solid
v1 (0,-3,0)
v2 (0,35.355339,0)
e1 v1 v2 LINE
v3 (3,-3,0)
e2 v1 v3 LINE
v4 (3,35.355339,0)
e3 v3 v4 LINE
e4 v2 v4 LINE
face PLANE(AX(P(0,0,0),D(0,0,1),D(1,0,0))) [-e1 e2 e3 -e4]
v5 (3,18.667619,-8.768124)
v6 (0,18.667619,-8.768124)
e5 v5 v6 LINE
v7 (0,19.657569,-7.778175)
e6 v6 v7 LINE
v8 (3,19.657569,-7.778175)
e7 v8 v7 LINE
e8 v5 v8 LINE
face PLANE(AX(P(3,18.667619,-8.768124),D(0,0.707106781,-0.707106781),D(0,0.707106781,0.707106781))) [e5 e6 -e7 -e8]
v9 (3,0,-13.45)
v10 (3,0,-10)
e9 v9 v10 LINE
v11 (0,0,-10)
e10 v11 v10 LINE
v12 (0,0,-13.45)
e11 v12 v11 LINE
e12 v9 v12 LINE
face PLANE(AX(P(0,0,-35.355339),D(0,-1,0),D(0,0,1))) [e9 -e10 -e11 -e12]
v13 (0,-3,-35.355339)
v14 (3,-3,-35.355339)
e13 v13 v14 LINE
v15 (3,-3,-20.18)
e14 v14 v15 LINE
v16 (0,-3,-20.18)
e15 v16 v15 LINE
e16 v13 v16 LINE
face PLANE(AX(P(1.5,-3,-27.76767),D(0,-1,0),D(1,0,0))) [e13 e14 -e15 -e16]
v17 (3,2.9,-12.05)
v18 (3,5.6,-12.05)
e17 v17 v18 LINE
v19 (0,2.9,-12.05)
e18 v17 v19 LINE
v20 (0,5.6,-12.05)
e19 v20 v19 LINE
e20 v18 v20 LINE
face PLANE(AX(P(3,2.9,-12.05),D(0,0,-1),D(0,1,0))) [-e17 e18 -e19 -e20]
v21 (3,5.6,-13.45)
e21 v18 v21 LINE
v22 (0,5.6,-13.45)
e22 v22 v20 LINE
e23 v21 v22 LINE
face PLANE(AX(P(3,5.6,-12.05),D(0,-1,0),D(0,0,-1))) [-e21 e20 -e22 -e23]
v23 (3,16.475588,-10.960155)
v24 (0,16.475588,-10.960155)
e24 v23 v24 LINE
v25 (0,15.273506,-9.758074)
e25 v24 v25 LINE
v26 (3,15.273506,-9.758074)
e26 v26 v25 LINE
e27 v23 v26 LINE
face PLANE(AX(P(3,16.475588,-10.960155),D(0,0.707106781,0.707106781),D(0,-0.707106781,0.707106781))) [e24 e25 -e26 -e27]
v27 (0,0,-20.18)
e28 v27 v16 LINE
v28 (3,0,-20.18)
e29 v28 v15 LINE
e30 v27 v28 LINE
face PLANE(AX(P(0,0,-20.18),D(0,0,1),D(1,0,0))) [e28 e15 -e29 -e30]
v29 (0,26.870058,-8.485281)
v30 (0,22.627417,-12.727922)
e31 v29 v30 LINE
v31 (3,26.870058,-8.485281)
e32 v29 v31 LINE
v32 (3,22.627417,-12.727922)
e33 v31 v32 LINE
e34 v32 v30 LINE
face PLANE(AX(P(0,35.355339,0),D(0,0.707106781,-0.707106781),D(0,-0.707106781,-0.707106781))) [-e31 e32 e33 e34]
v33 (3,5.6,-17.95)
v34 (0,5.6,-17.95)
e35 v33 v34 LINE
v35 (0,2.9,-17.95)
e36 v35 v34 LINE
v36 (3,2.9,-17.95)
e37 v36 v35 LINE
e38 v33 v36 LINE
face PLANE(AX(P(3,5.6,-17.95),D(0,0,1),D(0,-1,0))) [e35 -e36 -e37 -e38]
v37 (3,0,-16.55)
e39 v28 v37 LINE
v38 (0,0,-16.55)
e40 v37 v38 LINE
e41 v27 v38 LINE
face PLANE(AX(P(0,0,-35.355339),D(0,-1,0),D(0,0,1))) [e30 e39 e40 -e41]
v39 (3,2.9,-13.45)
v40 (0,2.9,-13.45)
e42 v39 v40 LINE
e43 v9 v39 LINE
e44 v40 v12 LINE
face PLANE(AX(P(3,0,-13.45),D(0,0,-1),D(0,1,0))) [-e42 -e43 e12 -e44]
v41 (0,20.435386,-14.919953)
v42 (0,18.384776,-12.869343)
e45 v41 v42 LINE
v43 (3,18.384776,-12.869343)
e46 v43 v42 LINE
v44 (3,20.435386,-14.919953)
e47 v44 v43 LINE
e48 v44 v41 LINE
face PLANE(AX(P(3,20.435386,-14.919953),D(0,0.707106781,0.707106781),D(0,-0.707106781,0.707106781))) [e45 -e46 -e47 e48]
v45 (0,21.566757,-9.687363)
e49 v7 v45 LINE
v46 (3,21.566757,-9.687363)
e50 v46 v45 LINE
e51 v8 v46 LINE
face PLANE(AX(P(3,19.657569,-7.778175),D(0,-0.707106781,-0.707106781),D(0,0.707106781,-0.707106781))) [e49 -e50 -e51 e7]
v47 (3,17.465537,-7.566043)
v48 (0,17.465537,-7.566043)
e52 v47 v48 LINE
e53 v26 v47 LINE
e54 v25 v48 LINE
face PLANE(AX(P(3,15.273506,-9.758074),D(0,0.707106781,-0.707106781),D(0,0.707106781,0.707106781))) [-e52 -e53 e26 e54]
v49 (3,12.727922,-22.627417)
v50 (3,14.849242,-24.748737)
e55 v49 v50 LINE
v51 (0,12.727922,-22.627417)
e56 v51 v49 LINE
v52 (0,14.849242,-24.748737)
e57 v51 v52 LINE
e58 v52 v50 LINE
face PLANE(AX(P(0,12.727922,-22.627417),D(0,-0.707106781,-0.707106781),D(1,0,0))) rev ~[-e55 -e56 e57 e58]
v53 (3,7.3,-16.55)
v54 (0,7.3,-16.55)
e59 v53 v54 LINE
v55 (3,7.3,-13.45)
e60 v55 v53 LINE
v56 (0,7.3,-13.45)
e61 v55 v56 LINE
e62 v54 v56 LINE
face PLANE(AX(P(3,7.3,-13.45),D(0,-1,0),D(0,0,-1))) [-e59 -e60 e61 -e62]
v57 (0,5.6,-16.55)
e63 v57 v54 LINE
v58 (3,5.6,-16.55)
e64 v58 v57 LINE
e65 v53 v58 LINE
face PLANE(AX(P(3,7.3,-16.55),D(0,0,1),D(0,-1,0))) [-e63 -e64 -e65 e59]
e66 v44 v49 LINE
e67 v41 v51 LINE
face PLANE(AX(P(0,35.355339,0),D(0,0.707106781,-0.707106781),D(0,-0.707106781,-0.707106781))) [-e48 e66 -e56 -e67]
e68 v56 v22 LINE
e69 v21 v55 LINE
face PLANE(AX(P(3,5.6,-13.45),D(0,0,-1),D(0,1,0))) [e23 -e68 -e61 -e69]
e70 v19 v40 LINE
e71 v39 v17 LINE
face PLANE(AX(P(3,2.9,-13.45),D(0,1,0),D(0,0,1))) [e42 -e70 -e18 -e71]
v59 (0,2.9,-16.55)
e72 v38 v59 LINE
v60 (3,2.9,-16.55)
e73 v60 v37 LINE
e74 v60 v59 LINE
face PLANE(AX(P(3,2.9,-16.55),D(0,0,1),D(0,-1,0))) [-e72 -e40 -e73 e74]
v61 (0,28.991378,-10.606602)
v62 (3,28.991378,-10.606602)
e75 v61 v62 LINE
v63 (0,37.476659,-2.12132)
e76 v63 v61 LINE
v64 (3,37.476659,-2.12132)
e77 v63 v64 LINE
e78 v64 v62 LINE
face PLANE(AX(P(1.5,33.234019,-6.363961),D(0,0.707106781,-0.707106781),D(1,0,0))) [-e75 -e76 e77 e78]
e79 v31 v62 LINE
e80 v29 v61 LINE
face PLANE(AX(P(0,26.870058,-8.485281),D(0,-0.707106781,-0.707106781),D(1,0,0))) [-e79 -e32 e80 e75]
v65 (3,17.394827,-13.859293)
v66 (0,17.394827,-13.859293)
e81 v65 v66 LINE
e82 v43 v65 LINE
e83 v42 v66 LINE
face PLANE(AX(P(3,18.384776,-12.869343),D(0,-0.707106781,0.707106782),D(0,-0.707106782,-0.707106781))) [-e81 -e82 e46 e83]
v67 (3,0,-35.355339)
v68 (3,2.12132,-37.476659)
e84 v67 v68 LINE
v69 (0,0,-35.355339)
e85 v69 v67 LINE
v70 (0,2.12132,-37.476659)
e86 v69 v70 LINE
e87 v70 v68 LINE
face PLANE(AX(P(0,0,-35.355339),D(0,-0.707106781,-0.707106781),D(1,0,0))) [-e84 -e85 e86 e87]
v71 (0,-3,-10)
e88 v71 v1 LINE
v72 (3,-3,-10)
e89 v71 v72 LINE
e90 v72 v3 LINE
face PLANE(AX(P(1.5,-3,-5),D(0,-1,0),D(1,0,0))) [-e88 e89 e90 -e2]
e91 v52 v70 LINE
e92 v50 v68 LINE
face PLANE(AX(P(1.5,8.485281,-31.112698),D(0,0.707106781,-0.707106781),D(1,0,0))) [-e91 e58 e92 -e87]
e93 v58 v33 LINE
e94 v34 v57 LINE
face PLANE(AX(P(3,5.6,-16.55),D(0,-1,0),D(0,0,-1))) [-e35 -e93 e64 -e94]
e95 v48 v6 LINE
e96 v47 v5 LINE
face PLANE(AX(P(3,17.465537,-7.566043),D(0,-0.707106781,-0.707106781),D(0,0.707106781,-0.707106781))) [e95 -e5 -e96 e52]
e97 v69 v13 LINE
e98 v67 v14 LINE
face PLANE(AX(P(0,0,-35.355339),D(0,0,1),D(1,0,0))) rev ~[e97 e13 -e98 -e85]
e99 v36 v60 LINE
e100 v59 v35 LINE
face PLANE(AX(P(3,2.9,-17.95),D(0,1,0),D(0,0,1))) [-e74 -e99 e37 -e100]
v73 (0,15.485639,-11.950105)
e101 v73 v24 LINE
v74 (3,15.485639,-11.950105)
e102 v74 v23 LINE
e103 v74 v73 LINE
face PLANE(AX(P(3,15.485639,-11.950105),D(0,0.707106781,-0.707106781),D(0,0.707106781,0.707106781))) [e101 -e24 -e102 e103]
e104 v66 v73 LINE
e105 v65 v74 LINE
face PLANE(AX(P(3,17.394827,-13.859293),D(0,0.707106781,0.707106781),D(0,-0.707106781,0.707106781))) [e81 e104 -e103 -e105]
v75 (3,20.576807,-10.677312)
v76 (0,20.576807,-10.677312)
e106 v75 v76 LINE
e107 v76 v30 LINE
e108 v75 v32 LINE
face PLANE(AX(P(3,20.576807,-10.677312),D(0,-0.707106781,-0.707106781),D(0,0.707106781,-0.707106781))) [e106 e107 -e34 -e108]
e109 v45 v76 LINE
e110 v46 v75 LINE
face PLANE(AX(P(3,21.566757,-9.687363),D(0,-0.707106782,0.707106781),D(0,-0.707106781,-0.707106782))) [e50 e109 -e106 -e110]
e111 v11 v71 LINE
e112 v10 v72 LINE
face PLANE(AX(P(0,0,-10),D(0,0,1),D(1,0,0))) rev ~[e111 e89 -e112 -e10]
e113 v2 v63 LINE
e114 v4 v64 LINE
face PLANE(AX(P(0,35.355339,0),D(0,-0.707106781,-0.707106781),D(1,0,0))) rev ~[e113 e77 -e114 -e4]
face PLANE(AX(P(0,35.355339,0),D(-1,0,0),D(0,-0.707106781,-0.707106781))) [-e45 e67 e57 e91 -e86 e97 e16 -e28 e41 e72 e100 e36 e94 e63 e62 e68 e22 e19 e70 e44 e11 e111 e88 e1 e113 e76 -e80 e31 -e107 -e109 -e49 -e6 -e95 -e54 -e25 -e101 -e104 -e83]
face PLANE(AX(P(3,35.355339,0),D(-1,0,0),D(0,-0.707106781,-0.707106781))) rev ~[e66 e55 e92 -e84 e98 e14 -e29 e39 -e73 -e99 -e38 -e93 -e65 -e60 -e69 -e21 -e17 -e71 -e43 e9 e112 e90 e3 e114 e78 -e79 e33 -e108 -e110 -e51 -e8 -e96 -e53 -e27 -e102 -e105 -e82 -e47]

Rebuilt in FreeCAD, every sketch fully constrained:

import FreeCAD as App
import Part
import Sketcher

V = App.Vector
Q = App.Units.Quantity

doc = App.newDocument("Part")
params = doc.addObject("Spreadsheet::Sheet", "Params")
for row, (alias, value) in enumerate([
    ("sketch1_length", "50 mm"),
    ("pad1_length", "3 mm"),
    ("sketch2_width", "3 mm"),
    ("sketch2_height", "10 mm"),
    ("pad2_length", "3 mm"),
    ("sketch3_width", "2.9 mm"),
    ("sketch3_width2", "2.7 mm"),
    ("sketch3_width3", "1.7 mm"),
    ("sketch3_height", "3.1 mm"),
    ("sketch3_height2", "1.4 mm"),
    ("pocket1_length", "10 mm"),
    ("sketch4_width", "3 mm"),
    ("sketch4_height", "12 mm"),
    ("sketch4_height2", "18 mm"),
    ("pad3_length", "3 mm"),
    ("sketch5_length", "2.9 mm"),
    ("sketch5_length2", "3.1 mm"),
    ("sketch5_length3", "1.4 mm"),
    ("sketch5_length4", "2.7 mm"),
    ("sketch5_length5", "1.7 mm"),
    ("pocket2_length", "3 mm"),
], start=1):
    params.set(f"A{row}", alias)
    params.set(f"B{row}", "=" + value)
    params.setAlias(f"B{row}", alias)

body = doc.addObject("PartDesign::Body", "Body")

sketch1 = body.newObject("Sketcher::SketchObject", "Sketch")
sketch1.AttachmentSupport = (doc.getObject("YZ_Plane"), [""])
sketch1.MapMode = "FlatFace"
sketch1.addGeometry(Part.LineSegment(V(35, 0, 0), V(0, 0, 0)), False)
sketch1.addGeometry(Part.LineSegment(V(0, 0, 0), V(0, -35, 0)), False)
sketch1.addGeometry(Part.LineSegment(V(0, -35, 0), V(35, 0, 0)), False)
sketch1.addConstraint(Sketcher.Constraint("Coincident", 0, 2, 1, 1))
sketch1.addConstraint(Sketcher.Constraint("Coincident", 1, 2, 2, 1))
sketch1.addConstraint(Sketcher.Constraint("Coincident", 2, 2, 0, 1))
sketch1.addConstraint(Sketcher.Constraint("Horizontal", 0))
sketch1.addConstraint(Sketcher.Constraint("Vertical", 1))
sketch1.addConstraint(Sketcher.Constraint("Coincident", 0, 2, -1, 1))
sketch1.addConstraint(Sketcher.Constraint("Equal", 0, 1))
sketch1.addConstraint(Sketcher.Constraint("Distance", 2, 50.0))
sketch1.setExpression("Constraints[7]", "Params.sketch1_length")
pad1 = body.newObject("PartDesign::Pad", "Pad")
pad1.Profile = sketch1
pad1.setExpression("Length", "Params.pad1_length")

sketch2 = body.newObject("Sketcher::SketchObject", "Sketch001")
sketch2.AttachmentSupport = (doc.getObject("XZ_Plane"), [""])
sketch2.MapMode = "FlatFace"
sketch2.addGeometry(Part.LineSegment(V(0, 0, 0), V(0, -10, 0)), False)
sketch2.addGeometry(Part.LineSegment(V(0, -10, 0), V(3, -10, 0)), False)
sketch2.addGeometry(Part.LineSegment(V(3, -10, 0), V(3, 0, 0)), False)
sketch2.addGeometry(Part.LineSegment(V(3, 0, 0), V(0, 0, 0)), False)
sketch2.addGeometry(Part.LineSegment(V(0, -20.2, 0), V(0, -35.4, 0)), False)
sketch2.addGeometry(Part.LineSegment(V(0, -35.4, 0), V(3, -35.4, 0)), False)
sketch2.addGeometry(Part.LineSegment(V(3, -35.4, 0), V(3, -20.2, 0)), False)
sketch2.addGeometry(Part.LineSegment(V(3, -20.2, 0), V(0, -20.2, 0)), False)
sketch2.addConstraint(Sketcher.Constraint("Coincident", 0, 2, 1, 1))
sketch2.addConstraint(Sketcher.Constraint("Coincident", 1, 2, 2, 1))
sketch2.addConstraint(Sketcher.Constraint("Coincident", 2, 2, 3, 1))
sketch2.addConstraint(Sketcher.Constraint("Coincident", 3, 2, 0, 1))
sketch2.addConstraint(Sketcher.Constraint("Coincident", 4, 2, 5, 1))
sketch2.addConstraint(Sketcher.Constraint("Coincident", 5, 2, 6, 1))
sketch2.addConstraint(Sketcher.Constraint("Coincident", 6, 2, 7, 1))
sketch2.addConstraint(Sketcher.Constraint("Coincident", 7, 2, 4, 1))
sketch2.addConstraint(Sketcher.Constraint("Vertical", 0))
sketch2.addConstraint(Sketcher.Constraint("Horizontal", 1))
sketch2.addConstraint(Sketcher.Constraint("Vertical", 2))
sketch2.addConstraint(Sketcher.Constraint("Horizontal", 3))
sketch2.addConstraint(Sketcher.Constraint("Vertical", 4))
sketch2.addConstraint(Sketcher.Constraint("Horizontal", 5))
sketch2.addConstraint(Sketcher.Constraint("Vertical", 6))
sketch2.addConstraint(Sketcher.Constraint("Horizontal", 7))
sketch2.addConstraint(Sketcher.Constraint("Coincident", 3, 2, -1, 1))
sketch2.addConstraint(Sketcher.Constraint("PointOnObject", 4, 2, -2))
sketch2.addConstraint(Sketcher.Constraint("Vertical", 2, 2, 5, 2))
sketch2.addConstraint(Sketcher.Constraint("DistanceX", 1, 1, 1, 2, 3.0))
sketch2.addConstraint(Sketcher.Constraint("DistanceY", 0, 2, 0, 1, 10.0))
sketch2.addConstraint(Sketcher.Constraint("DistanceY", 6, 2, -1, 1, 20.18))
sketch2.addConstraint(Sketcher.Constraint("DistanceY", 4, 2, 4, 1, 15.175339))
sketch2.setExpression("Constraints[19]", "Params.sketch2_width")
sketch2.setExpression("Constraints[20]", "Params.sketch2_height")
pad2 = body.newObject("PartDesign::Pad", "Pad001")
pad2.Profile = sketch2
pad2.setExpression("Length", "Params.pad2_length")

sketch3 = body.newObject("Sketcher::SketchObject", "Sketch002")
sketch3.AttachmentSupport = (doc.getObject("YZ_Plane"), [""])
sketch3.MapMode = "FlatFace"
sketch3.AttachmentOffset = App.Placement(V(0, 0, 3), App.Rotation())
sketch3.addGeometry(Part.LineSegment(V(2.9, -13.4, 0), V(0, -13.4, 0)), False)
sketch3.addGeometry(Part.LineSegment(V(0, -13.4, 0), V(0, -16.6, 0)), False)
sketch3.addGeometry(Part.LineSegment(V(0, -16.6, 0), V(2.9, -16.6, 0)), False)
sketch3.addGeometry(Part.LineSegment(V(2.9, -16.6, 0), V(2.9, -17.9, 0)), False)
sketch3.addGeometry(Part.LineSegment(V(2.9, -17.9, 0), V(5.6, -17.9, 0)), False)
sketch3.addGeometry(Part.LineSegment(V(5.6, -17.9, 0), V(5.6, -16.6, 0)), False)
sketch3.addGeometry(Part.LineSegment(V(5.6, -16.6, 0), V(7.3, -16.6, 0)), False)
sketch3.addGeometry(Part.LineSegment(V(7.3, -16.6, 0), V(7.3, -13.4, 0)), False)
sketch3.addGeometry(Part.LineSegment(V(7.3, -13.4, 0), V(5.6, -13.4, 0)), False)
sketch3.addGeometry(Part.LineSegment(V(5.6, -13.4, 0), V(5.6, -12.1, 0)), False)
sketch3.addGeometry(Part.LineSegment(V(5.6, -12.1, 0), V(2.9, -12.1, 0)), False)
sketch3.addGeometry(Part.LineSegment(V(2.9, -12.1, 0), V(2.9, -13.4, 0)), False)
sketch3.addConstraint(Sketcher.Constraint("Coincident", 0, 2, 1, 1))
sketch3.addConstraint(Sketcher.Constraint("Coincident", 1, 2, 2, 1))
sketch3.addConstraint(Sketcher.Constraint("Coincident", 2, 2, 3, 1))
sketch3.addConstraint(Sketcher.Constraint("Coincident", 3, 2, 4, 1))
sketch3.addConstraint(Sketcher.Constraint("Coincident", 4, 2, 5, 1))
sketch3.addConstraint(Sketcher.Constraint("Coincident", 5, 2, 6, 1))
sketch3.addConstraint(Sketcher.Constraint("Coincident", 6, 2, 7, 1))
sketch3.addConstraint(Sketcher.Constraint("Coincident", 7, 2, 8, 1))
sketch3.addConstraint(Sketcher.Constraint("Coincident", 8, 2, 9, 1))
sketch3.addConstraint(Sketcher.Constraint("Coincident", 9, 2, 10, 1))
sketch3.addConstraint(Sketcher.Constraint("Coincident", 10, 2, 11, 1))
sketch3.addConstraint(Sketcher.Constraint("Coincident", 11, 2, 0, 1))
sketch3.addConstraint(Sketcher.Constraint("Horizontal", 0))
sketch3.addConstraint(Sketcher.Constraint("Vertical", 1))
sketch3.addConstraint(Sketcher.Constraint("Horizontal", 2))
sketch3.addConstraint(Sketcher.Constraint("Vertical", 3))
sketch3.addConstraint(Sketcher.Constraint("Horizontal", 4))
sketch3.addConstraint(Sketcher.Constraint("Vertical", 5))
sketch3.addConstraint(Sketcher.Constraint("Horizontal", 6))
sketch3.addConstraint(Sketcher.Constraint("Vertical", 7))
sketch3.addConstraint(Sketcher.Constraint("Horizontal", 8))
sketch3.addConstraint(Sketcher.Constraint("Vertical", 9))
sketch3.addConstraint(Sketcher.Constraint("Horizontal", 10))
sketch3.addConstraint(Sketcher.Constraint("Vertical", 11))
sketch3.addConstraint(Sketcher.Constraint("PointOnObject", 0, 2, -2))
sketch3.addConstraint(Sketcher.Constraint("Horizontal", 2, 2, 5, 2))
sketch3.addConstraint(Sketcher.Constraint("Horizontal", 0, 2, 7, 2))
sketch3.addConstraint(Sketcher.Constraint("Vertical", 5, 2, 8, 2))
sketch3.addConstraint(Sketcher.Constraint("Vertical", 3, 2, 10, 2))
sketch3.addConstraint(Sketcher.Constraint("Equal", 5, 9))
sketch3.addConstraint(Sketcher.Constraint("DistanceX", 0, 2, 0, 1, 2.9))
sketch3.addConstraint(Sketcher.Constraint("DistanceX", 4, 1, 4, 2, 2.7))
sketch3.addConstraint(Sketcher.Constraint("DistanceX", 6, 1, 6, 2, 1.7))
sketch3.addConstraint(Sketcher.Constraint("DistanceY", 1, 2, 1, 1, 3.1))
sketch3.addConstraint(Sketcher.Constraint("DistanceY", 3, 2, 3, 1, 1.4))
sketch3.addConstraint(Sketcher.Constraint("DistanceY", 0, 2, -1, 1, 13.45))
sketch3.setExpression("Constraints[30]", "Params.sketch3_width")
sketch3.setExpression("Constraints[31]", "Params.sketch3_width2")
sketch3.setExpression("Constraints[32]", "Params.sketch3_width3")
sketch3.setExpression("Constraints[33]", "Params.sketch3_height")
sketch3.setExpression("Constraints[34]", "Params.sketch3_height2")
pocket1 = body.newObject("PartDesign::Pocket", "Pocket")
pocket1.Profile = sketch3
pocket1.setExpression("Length", "Params.pocket1_length")

sketch4 = body.newObject("Sketcher::SketchObject", "Sketch003")
sketch4.Placement = App.Placement(V(0, 17.67767, -17.67767), App.Rotation(V(1, 0, 0), V(0, -0.707106781, -0.707106781), V(0, 0.707106781, -0.707106781), "ZXY"))
sketch4.addGeometry(Part.LineSegment(V(0, -13, 0), V(0, -25, 0)), False)
sketch4.addGeometry(Part.LineSegment(V(0, -25, 0), V(3, -25, 0)), False)
sketch4.addGeometry(Part.LineSegment(V(3, -25, 0), V(3, -13, 0)), False)
sketch4.addGeometry(Part.LineSegment(V(3, -13, 0), V(0, -13, 0)), False)
sketch4.addGeometry(Part.LineSegment(V(0, 25, 0), V(0, 7, 0)), False)
sketch4.addGeometry(Part.LineSegment(V(0, 7, 0), V(3, 7, 0)), False)
sketch4.addGeometry(Part.LineSegment(V(3, 7, 0), V(3, 25, 0)), False)
sketch4.addGeometry(Part.LineSegment(V(3, 25, 0), V(0, 25, 0)), False)
sketch4.addConstraint(Sketcher.Constraint("Coincident", 0, 2, 1, 1))
sketch4.addConstraint(Sketcher.Constraint("Coincident", 1, 2, 2, 1))
sketch4.addConstraint(Sketcher.Constraint("Coincident", 2, 2, 3, 1))
sketch4.addConstraint(Sketcher.Constraint("Coincident", 3, 2, 0, 1))
sketch4.addConstraint(Sketcher.Constraint("Coincident", 4, 2, 5, 1))
sketch4.addConstraint(Sketcher.Constraint("Coincident", 5, 2, 6, 1))
sketch4.addConstraint(Sketcher.Constraint("Coincident", 6, 2, 7, 1))
sketch4.addConstraint(Sketcher.Constraint("Coincident", 7, 2, 4, 1))
sketch4.addConstraint(Sketcher.Constraint("Vertical", 0))
sketch4.addConstraint(Sketcher.Constraint("Horizontal", 1))
sketch4.addConstraint(Sketcher.Constraint("Vertical", 2))
sketch4.addConstraint(Sketcher.Constraint("Horizontal", 3))
sketch4.addConstraint(Sketcher.Constraint("Vertical", 4))
sketch4.addConstraint(Sketcher.Constraint("Horizontal", 5))
sketch4.addConstraint(Sketcher.Constraint("Vertical", 6))
sketch4.addConstraint(Sketcher.Constraint("Horizontal", 7))
sketch4.addConstraint(Sketcher.Constraint("Symmetric", 0, 2, 7, 2, -1, 1))
sketch4.addConstraint(Sketcher.Constraint("PointOnObject", 0, 2, -2))
sketch4.addConstraint(Sketcher.Constraint("Vertical", 2, 2, 5, 2))
sketch4.addConstraint(Sketcher.Constraint("DistanceX", 1, 1, 1, 2, 3.0))
sketch4.addConstraint(Sketcher.Constraint("DistanceY", 0, 2, 0, 1, 12.0))
sketch4.addConstraint(Sketcher.Constraint("DistanceY", 4, 2, 4, 1, 18.0))
sketch4.addConstraint(Sketcher.Constraint("DistanceY", 0, 2, -1, 1, 25.0))
sketch4.setExpression("Constraints[19]", "Params.sketch4_width")
sketch4.setExpression("Constraints[20]", "Params.sketch4_height")
sketch4.setExpression("Constraints[21]", "Params.sketch4_height2")
pad3 = body.newObject("PartDesign::Pad", "Pad002")
pad3.Profile = sketch4
pad3.setExpression("Length", "Params.pad3_length")

sketch5 = body.newObject("Sketcher::SketchObject", "Sketch004")
sketch5.AttachmentSupport = (doc.getObject("YZ_Plane"), [""])
sketch5.MapMode = "FlatFace"
sketch5.AttachmentOffset = App.Placement(V(0, 0, 3), App.Rotation())
sketch5.addGeometry(Part.LineSegment(V(18.4, -12.9, 0), V(20.4, -14.9, 0)), False)
sketch5.addGeometry(Part.LineSegment(V(20.4, -14.9, 0), V(22.6, -12.7, 0)), False)
sketch5.addGeometry(Part.LineSegment(V(22.6, -12.7, 0), V(20.6, -10.7, 0)), False)
sketch5.addGeometry(Part.LineSegment(V(20.6, -10.7, 0), V(21.6, -9.7, 0)), False)
sketch5.addGeometry(Part.LineSegment(V(21.6, -9.7, 0), V(19.7, -7.8, 0)), False)
sketch5.addGeometry(Part.LineSegment(V(19.7, -7.8, 0), V(18.7, -8.8, 0)), False)
sketch5.addGeometry(Part.LineSegment(V(18.7, -8.8, 0), V(17.5, -7.6, 0)), False)
sketch5.addGeometry(Part.LineSegment(V(17.5, -7.6, 0), V(15.3, -9.8, 0)), False)
sketch5.addGeometry(Part.LineSegment(V(15.3, -9.8, 0), V(16.5, -11, 0)), False)
sketch5.addGeometry(Part.LineSegment(V(16.5, -11, 0), V(15.5, -12, 0)), False)
sketch5.addGeometry(Part.LineSegment(V(15.5, -12, 0), V(17.4, -13.9, 0)), False)
sketch5.addGeometry(Part.LineSegment(V(17.4, -13.9, 0), V(18.4, -12.9, 0)), False)
sketch5.addConstraint(Sketcher.Constraint("Coincident", 0, 2, 1, 1))
sketch5.addConstraint(Sketcher.Constraint("Coincident", 1, 2, 2, 1))
sketch5.addConstraint(Sketcher.Constraint("Coincident", 2, 2, 3, 1))
sketch5.addConstraint(Sketcher.Constraint("Coincident", 3, 2, 4, 1))
sketch5.addConstraint(Sketcher.Constraint("Coincident", 4, 2, 5, 1))
sketch5.addConstraint(Sketcher.Constraint("Coincident", 5, 2, 6, 1))
sketch5.addConstraint(Sketcher.Constraint("Coincident", 6, 2, 7, 1))
sketch5.addConstraint(Sketcher.Constraint("Coincident", 7, 2, 8, 1))
sketch5.addConstraint(Sketcher.Constraint("Coincident", 8, 2, 9, 1))
sketch5.addConstraint(Sketcher.Constraint("Coincident", 9, 2, 10, 1))
sketch5.addConstraint(Sketcher.Constraint("Coincident", 10, 2, 11, 1))
sketch5.addConstraint(Sketcher.Constraint("Coincident", 11, 2, 0, 1))
sketch5.addConstraint(Sketcher.Constraint("Perpendicular", 0, 1))
sketch5.addConstraint(Sketcher.Constraint("Perpendicular", 1, 2))
sketch5.addConstraint(Sketcher.Constraint("Perpendicular", 2, 3))
sketch5.addConstraint(Sketcher.Constraint("Perpendicular", 3, 4))
sketch5.addConstraint(Sketcher.Constraint("Perpendicular", 4, 5))
sketch5.addConstraint(Sketcher.Constraint("Perpendicular", 5, 6))
sketch5.addConstraint(Sketcher.Constraint("Perpendicular", 6, 7))
sketch5.addConstraint(Sketcher.Constraint("Perpendicular", 7, 8))
sketch5.addConstraint(Sketcher.Constraint("Perpendicular", 8, 9))
sketch5.addConstraint(Sketcher.Constraint("Perpendicular", 9, 10))
sketch5.addConstraint(Sketcher.Constraint("Perpendicular", 10, 11))
sketch5.addConstraint(Sketcher.Constraint("Equal", 0, 2))
sketch5.addConstraint(Sketcher.Constraint("Equal", 3, 5))
sketch5.addConstraint(Sketcher.Constraint("Equal", 1, 7))
sketch5.addConstraint(Sketcher.Constraint("Equal", 6, 8))
sketch5.addConstraint(Sketcher.Constraint("Equal", 5, 9))
sketch5.addConstraint(Sketcher.Constraint("Angle", 0, Q("-45 deg")))
sketch5.addConstraint(Sketcher.Constraint("Distance", 0, 2.9))
sketch5.addConstraint(Sketcher.Constraint("Distance", 1, 3.1))
sketch5.addConstraint(Sketcher.Constraint("Distance", 3, 1.4))
sketch5.addConstraint(Sketcher.Constraint("Distance", 4, 2.7))
sketch5.addConstraint(Sketcher.Constraint("Distance", 6, 1.7))
sketch5.addConstraint(Sketcher.Constraint("DistanceX", -1, 1, 4, 2, 19.657569))
sketch5.addConstraint(Sketcher.Constraint("DistanceY", 0, 2, -1, 1, 14.919953))
sketch5.setExpression("Constraints[29]", "Params.sketch5_length")
sketch5.setExpression("Constraints[30]", "Params.sketch5_length2")
sketch5.setExpression("Constraints[31]", "Params.sketch5_length3")
sketch5.setExpression("Constraints[32]", "Params.sketch5_length4")
sketch5.setExpression("Constraints[33]", "Params.sketch5_length5")
pocket2 = body.newObject("PartDesign::Pocket", "Pocket001")
pocket2.Profile = sketch5
pocket2.setExpression("Length", "Params.pocket2_length")

doc.recompute()
